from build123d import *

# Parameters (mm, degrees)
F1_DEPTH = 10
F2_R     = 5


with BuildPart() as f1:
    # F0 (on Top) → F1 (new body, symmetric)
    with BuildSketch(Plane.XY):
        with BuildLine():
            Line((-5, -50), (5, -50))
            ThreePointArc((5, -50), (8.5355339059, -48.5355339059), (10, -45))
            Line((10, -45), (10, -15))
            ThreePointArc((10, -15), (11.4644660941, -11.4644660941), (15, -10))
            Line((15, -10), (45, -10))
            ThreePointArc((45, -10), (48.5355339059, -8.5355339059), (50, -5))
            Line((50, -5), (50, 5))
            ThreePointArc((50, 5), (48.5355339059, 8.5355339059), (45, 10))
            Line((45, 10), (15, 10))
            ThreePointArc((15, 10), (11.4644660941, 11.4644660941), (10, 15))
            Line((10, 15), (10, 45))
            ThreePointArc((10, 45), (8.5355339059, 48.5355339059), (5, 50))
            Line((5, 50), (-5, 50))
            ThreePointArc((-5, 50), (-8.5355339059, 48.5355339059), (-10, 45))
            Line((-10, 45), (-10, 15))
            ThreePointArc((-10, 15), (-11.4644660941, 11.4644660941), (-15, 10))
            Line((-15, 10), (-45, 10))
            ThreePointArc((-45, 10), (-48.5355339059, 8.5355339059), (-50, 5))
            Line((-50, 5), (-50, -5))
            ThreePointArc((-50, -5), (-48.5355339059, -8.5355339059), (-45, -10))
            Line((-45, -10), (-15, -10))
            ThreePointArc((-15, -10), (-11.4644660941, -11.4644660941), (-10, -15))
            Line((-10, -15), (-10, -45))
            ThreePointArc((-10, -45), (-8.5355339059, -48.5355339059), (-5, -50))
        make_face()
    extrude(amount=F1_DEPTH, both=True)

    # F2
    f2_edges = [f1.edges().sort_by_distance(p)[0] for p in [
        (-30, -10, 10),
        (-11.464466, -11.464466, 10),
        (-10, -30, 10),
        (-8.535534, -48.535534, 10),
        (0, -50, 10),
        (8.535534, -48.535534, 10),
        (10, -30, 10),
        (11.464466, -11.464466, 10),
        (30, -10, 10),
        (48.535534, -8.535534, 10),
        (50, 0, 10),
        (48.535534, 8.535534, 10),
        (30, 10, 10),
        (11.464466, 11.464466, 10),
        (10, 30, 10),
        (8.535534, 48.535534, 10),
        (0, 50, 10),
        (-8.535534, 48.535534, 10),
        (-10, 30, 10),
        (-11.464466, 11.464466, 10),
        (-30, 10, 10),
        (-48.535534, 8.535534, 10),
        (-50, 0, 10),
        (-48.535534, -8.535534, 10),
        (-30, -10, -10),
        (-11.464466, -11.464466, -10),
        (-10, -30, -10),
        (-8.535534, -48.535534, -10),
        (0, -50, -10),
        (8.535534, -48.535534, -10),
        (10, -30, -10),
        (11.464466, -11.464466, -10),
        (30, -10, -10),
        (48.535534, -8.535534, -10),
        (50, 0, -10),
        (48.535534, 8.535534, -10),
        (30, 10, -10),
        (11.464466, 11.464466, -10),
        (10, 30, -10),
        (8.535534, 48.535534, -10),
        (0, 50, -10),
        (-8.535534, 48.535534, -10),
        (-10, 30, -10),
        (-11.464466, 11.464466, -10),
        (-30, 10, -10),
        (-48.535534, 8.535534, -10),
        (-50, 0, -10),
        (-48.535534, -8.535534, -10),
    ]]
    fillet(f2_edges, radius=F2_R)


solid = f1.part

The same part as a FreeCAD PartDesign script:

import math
import FreeCAD as App
import Part
import Sketcher
from FreeCAD import Vector


def edges_at(feature, points):
    """Names of the edges that pass closest to the given points."""
    edges = feature.Shape.Edges
    near = lambda p: min(range(len(edges)), key=lambda i: edges[i].distToShape(Part.Vertex(*p))[0])
    return sorted({f"Edge{near(p) + 1}" for p in points})

doc = App.newDocument("Part")
body = doc.addObject("PartDesign::Body", "Body")

sketch1 = body.newObject("Sketcher::SketchObject", "Sketch")
sketch1.AttachmentSupport = (doc.getObject("XY_Plane"), [""])
sketch1.MapMode = "FlatFace"
sketch1.addGeometry([
    Part.LineSegment(Vector(-5, -50, 0), Vector(5, -50, 0)),
    Part.ArcOfCircle(Part.Circle(Vector(5, -45, 0), Vector(0, 0, 1), 5), math.radians(-90), math.radians(0)),
    Part.LineSegment(Vector(10, -45, 0), Vector(10, -15, 0)),
    Part.ArcOfCircle(Part.Circle(Vector(15, -15, 0), Vector(0, 0, 1), 5), math.radians(90), math.radians(180)),
    Part.LineSegment(Vector(15, -10, 0), Vector(45, -10, 0)),
    Part.ArcOfCircle(Part.Circle(Vector(45, -5, 0), Vector(0, 0, 1), 5), math.radians(-90), math.radians(0)),
    Part.LineSegment(Vector(50, -5, 0), Vector(50, 5, 0)),
    Part.ArcOfCircle(Part.Circle(Vector(45, 5, 0), Vector(0, 0, 1), 5), math.radians(0), math.radians(90)),
    Part.LineSegment(Vector(45, 10, 0), Vector(15, 10, 0)),
    Part.ArcOfCircle(Part.Circle(Vector(15, 15, 0), Vector(0, 0, 1), 5), math.radians(180), math.radians(270)),
    Part.LineSegment(Vector(10, 15, 0), Vector(10, 45, 0)),
    Part.ArcOfCircle(Part.Circle(Vector(5, 45, 0), Vector(0, 0, 1), 5), math.radians(0), math.radians(90)),
    Part.LineSegment(Vector(5, 50, 0), Vector(-5, 50, 0)),
    Part.ArcOfCircle(Part.Circle(Vector(-5, 45, 0), Vector(0, 0, 1), 5), math.radians(90), math.radians(180)),
    Part.LineSegment(Vector(-10, 45, 0), Vector(-10, 15, 0)),
    Part.ArcOfCircle(Part.Circle(Vector(-15, 15, 0), Vector(0, 0, 1), 5), math.radians(-90), math.radians(0)),
    Part.LineSegment(Vector(-15, 10, 0), Vector(-45, 10, 0)),
    Part.ArcOfCircle(Part.Circle(Vector(-45, 5, 0), Vector(0, 0, 1), 5), math.radians(90), math.radians(180)),
    Part.LineSegment(Vector(-50, 5, 0), Vector(-50, -5, 0)),
    Part.ArcOfCircle(Part.Circle(Vector(-45, -5, 0), Vector(0, 0, 1), 5), math.radians(180), math.radians(270)),
    Part.LineSegment(Vector(-45, -10, 0), Vector(-15, -10, 0)),
    Part.ArcOfCircle(Part.Circle(Vector(-15, -15, 0), Vector(0, 0, 1), 5), math.radians(0), math.radians(90)),
    Part.LineSegment(Vector(-10, -15, 0), Vector(-10, -45, 0)),
    Part.ArcOfCircle(Part.Circle(Vector(-5, -45, 0), Vector(0, 0, 1), 5), math.radians(180), math.radians(270)),
], False)
sketch1.addConstraint([
    Sketcher.Constraint("Tangent", 0, 2, 1, 1),
    Sketcher.Constraint("Tangent", 1, 2, 2, 1),
    Sketcher.Constraint("Tangent", 2, 2, 3, 2),
    Sketcher.Constraint("Tangent", 3, 1, 4, 1),
    Sketcher.Constraint("Tangent", 4, 2, 5, 1),
    Sketcher.Constraint("Tangent", 5, 2, 6, 1),
    Sketcher.Constraint("Tangent", 6, 2, 7, 1),
    Sketcher.Constraint("Tangent", 7, 2, 8, 1),
    Sketcher.Constraint("Tangent", 8, 2, 9, 2),
    Sketcher.Constraint("Tangent", 9, 1, 10, 1),
    Sketcher.Constraint("Tangent", 10, 2, 11, 1),
    Sketcher.Constraint("Tangent", 11, 2, 12, 1),
    Sketcher.Constraint("Tangent", 12, 2, 13, 1),
    Sketcher.Constraint("Tangent", 13, 2, 14, 1),
    Sketcher.Constraint("Tangent", 14, 2, 15, 2),
    Sketcher.Constraint("Tangent", 15, 1, 16, 1),
    Sketcher.Constraint("Tangent", 16, 2, 17, 1),
    Sketcher.Constraint("Tangent", 17, 2, 18, 1),
    Sketcher.Constraint("Tangent", 18, 2, 19, 1),
    Sketcher.Constraint("Tangent", 19, 2, 20, 1),
    Sketcher.Constraint("Tangent", 20, 2, 21, 2),
    Sketcher.Constraint("Tangent", 21, 1, 22, 1),
    Sketcher.Constraint("Tangent", 22, 2, 23, 1),
    Sketcher.Constraint("Tangent", 23, 2, 0, 1),
    Sketcher.Constraint("Horizontal", 0),
    Sketcher.Constraint("Vertical", 2),
    Sketcher.Constraint("Horizontal", 4),
    Sketcher.Constraint("Vertical", 6),
    Sketcher.Constraint("Horizontal", 8),
    Sketcher.Constraint("Vertical", 10),
    Sketcher.Constraint("Horizontal", 12),
    Sketcher.Constraint("Vertical", 14),
    Sketcher.Constraint("Horizontal", 16),
    Sketcher.Constraint("Vertical", 18),
    Sketcher.Constraint("Horizontal", 20),
    Sketcher.Constraint("Vertical", 22),
    Sketcher.Constraint("Equal", 1, 3),
    Sketcher.Constraint("Equal", 3, 5),
    Sketcher.Constraint("Equal", 5, 7),
    Sketcher.Constraint("Equal", 7, 9),
    Sketcher.Constraint("Equal", 9, 11),
    Sketcher.Constraint("Equal", 11, 13),
    Sketcher.Constraint("Equal", 13, 15),
    Sketcher.Constraint("Equal", 15, 17),
    Sketcher.Constraint("Equal", 17, 19),
    Sketcher.Constraint("Equal", 19, 21),
    Sketcher.Constraint("Equal", 21, 23),
    Sketcher.Constraint("Symmetric", 1, 3, 13, 3, -1, 1),
    Sketcher.Constraint("Symmetric", 5, 3, 17, 3, -1, 1),
    Sketcher.Constraint("Symmetric", 9, 3, 21, 3, -1, 1),
    Sketcher.Constraint("Symmetric", 9, 3, 15, 3, -2),
    Sketcher.Constraint("Equal", 20, 2),
    Sketcher.Constraint("Equal", 12, 6),
    Sketcher.Constraint("Radius", 1, 5.0),
    Sketcher.Constraint("DistanceX", 0, 1, 0, 2, 10.0),
    Sketcher.Constraint("DistanceX", 4, 1, 4, 2, 30.0),
])
pad1 = body.newObject("PartDesign::Pad", "Pad")
pad1.Profile = sketch1
pad1.Length = 20
pad1.Midplane = True
doc.recompute()

fillet = body.newObject("PartDesign::Fillet", "Fillet")
fillet.Base = (pad1, edges_at(pad1, [
    (-30, -10, 10),
    (-11.464, -11.464, 10),
    (-10, -30, 10),
    (-8.536, -48.536, 10),
    (0, -50, 10),
    (8.536, -48.536, 10),
    (10, -30, 10),
    (11.464, -11.464, 10),
    (30, -10, 10),
    (48.536, -8.536, 10),
    (50, 0, 10),
    (48.536, 8.536, 10),
    (30, 10, 10),
    (11.464, 11.464, 10),
    (10, 30, 10),
    (8.536, 48.536, 10),
    (0, 50, 10),
    (-8.536, 48.536, 10),
    (-10, 30, 10),
    (-11.464, 11.464, 10),
    (-30, 10, 10),
    (-48.536, 8.536, 10),
    (-50, 0, 10),
    (-48.536, -8.536, 10),
    (-30, -10, -10),
    (-11.464, -11.464, -10),
    (-10, -30, -10),
    (-8.536, -48.536, -10),
    (0, -50, -10),
    (8.536, -48.536, -10),
    (10, -30, -10),
    (11.464, -11.464, -10),
    (30, -10, -10),
    (48.536, -8.536, -10),
    (50, 0, -10),
    (48.536, 8.536, -10),
    (30, 10, -10),
    (11.464, 11.464, -10),
    (10, 30, -10),
    (8.536, 48.536, -10),
    (0, 50, -10),
    (-8.536, 48.536, -10),
    (-10, 30, -10),
    (-11.464, 11.464, -10),
    (-30, 10, -10),
    (-48.536, 8.536, -10),
    (-50, 0, -10),
    (-48.536, -8.536, -10),
]))
fillet.Radius = 5

doc.recompute()
